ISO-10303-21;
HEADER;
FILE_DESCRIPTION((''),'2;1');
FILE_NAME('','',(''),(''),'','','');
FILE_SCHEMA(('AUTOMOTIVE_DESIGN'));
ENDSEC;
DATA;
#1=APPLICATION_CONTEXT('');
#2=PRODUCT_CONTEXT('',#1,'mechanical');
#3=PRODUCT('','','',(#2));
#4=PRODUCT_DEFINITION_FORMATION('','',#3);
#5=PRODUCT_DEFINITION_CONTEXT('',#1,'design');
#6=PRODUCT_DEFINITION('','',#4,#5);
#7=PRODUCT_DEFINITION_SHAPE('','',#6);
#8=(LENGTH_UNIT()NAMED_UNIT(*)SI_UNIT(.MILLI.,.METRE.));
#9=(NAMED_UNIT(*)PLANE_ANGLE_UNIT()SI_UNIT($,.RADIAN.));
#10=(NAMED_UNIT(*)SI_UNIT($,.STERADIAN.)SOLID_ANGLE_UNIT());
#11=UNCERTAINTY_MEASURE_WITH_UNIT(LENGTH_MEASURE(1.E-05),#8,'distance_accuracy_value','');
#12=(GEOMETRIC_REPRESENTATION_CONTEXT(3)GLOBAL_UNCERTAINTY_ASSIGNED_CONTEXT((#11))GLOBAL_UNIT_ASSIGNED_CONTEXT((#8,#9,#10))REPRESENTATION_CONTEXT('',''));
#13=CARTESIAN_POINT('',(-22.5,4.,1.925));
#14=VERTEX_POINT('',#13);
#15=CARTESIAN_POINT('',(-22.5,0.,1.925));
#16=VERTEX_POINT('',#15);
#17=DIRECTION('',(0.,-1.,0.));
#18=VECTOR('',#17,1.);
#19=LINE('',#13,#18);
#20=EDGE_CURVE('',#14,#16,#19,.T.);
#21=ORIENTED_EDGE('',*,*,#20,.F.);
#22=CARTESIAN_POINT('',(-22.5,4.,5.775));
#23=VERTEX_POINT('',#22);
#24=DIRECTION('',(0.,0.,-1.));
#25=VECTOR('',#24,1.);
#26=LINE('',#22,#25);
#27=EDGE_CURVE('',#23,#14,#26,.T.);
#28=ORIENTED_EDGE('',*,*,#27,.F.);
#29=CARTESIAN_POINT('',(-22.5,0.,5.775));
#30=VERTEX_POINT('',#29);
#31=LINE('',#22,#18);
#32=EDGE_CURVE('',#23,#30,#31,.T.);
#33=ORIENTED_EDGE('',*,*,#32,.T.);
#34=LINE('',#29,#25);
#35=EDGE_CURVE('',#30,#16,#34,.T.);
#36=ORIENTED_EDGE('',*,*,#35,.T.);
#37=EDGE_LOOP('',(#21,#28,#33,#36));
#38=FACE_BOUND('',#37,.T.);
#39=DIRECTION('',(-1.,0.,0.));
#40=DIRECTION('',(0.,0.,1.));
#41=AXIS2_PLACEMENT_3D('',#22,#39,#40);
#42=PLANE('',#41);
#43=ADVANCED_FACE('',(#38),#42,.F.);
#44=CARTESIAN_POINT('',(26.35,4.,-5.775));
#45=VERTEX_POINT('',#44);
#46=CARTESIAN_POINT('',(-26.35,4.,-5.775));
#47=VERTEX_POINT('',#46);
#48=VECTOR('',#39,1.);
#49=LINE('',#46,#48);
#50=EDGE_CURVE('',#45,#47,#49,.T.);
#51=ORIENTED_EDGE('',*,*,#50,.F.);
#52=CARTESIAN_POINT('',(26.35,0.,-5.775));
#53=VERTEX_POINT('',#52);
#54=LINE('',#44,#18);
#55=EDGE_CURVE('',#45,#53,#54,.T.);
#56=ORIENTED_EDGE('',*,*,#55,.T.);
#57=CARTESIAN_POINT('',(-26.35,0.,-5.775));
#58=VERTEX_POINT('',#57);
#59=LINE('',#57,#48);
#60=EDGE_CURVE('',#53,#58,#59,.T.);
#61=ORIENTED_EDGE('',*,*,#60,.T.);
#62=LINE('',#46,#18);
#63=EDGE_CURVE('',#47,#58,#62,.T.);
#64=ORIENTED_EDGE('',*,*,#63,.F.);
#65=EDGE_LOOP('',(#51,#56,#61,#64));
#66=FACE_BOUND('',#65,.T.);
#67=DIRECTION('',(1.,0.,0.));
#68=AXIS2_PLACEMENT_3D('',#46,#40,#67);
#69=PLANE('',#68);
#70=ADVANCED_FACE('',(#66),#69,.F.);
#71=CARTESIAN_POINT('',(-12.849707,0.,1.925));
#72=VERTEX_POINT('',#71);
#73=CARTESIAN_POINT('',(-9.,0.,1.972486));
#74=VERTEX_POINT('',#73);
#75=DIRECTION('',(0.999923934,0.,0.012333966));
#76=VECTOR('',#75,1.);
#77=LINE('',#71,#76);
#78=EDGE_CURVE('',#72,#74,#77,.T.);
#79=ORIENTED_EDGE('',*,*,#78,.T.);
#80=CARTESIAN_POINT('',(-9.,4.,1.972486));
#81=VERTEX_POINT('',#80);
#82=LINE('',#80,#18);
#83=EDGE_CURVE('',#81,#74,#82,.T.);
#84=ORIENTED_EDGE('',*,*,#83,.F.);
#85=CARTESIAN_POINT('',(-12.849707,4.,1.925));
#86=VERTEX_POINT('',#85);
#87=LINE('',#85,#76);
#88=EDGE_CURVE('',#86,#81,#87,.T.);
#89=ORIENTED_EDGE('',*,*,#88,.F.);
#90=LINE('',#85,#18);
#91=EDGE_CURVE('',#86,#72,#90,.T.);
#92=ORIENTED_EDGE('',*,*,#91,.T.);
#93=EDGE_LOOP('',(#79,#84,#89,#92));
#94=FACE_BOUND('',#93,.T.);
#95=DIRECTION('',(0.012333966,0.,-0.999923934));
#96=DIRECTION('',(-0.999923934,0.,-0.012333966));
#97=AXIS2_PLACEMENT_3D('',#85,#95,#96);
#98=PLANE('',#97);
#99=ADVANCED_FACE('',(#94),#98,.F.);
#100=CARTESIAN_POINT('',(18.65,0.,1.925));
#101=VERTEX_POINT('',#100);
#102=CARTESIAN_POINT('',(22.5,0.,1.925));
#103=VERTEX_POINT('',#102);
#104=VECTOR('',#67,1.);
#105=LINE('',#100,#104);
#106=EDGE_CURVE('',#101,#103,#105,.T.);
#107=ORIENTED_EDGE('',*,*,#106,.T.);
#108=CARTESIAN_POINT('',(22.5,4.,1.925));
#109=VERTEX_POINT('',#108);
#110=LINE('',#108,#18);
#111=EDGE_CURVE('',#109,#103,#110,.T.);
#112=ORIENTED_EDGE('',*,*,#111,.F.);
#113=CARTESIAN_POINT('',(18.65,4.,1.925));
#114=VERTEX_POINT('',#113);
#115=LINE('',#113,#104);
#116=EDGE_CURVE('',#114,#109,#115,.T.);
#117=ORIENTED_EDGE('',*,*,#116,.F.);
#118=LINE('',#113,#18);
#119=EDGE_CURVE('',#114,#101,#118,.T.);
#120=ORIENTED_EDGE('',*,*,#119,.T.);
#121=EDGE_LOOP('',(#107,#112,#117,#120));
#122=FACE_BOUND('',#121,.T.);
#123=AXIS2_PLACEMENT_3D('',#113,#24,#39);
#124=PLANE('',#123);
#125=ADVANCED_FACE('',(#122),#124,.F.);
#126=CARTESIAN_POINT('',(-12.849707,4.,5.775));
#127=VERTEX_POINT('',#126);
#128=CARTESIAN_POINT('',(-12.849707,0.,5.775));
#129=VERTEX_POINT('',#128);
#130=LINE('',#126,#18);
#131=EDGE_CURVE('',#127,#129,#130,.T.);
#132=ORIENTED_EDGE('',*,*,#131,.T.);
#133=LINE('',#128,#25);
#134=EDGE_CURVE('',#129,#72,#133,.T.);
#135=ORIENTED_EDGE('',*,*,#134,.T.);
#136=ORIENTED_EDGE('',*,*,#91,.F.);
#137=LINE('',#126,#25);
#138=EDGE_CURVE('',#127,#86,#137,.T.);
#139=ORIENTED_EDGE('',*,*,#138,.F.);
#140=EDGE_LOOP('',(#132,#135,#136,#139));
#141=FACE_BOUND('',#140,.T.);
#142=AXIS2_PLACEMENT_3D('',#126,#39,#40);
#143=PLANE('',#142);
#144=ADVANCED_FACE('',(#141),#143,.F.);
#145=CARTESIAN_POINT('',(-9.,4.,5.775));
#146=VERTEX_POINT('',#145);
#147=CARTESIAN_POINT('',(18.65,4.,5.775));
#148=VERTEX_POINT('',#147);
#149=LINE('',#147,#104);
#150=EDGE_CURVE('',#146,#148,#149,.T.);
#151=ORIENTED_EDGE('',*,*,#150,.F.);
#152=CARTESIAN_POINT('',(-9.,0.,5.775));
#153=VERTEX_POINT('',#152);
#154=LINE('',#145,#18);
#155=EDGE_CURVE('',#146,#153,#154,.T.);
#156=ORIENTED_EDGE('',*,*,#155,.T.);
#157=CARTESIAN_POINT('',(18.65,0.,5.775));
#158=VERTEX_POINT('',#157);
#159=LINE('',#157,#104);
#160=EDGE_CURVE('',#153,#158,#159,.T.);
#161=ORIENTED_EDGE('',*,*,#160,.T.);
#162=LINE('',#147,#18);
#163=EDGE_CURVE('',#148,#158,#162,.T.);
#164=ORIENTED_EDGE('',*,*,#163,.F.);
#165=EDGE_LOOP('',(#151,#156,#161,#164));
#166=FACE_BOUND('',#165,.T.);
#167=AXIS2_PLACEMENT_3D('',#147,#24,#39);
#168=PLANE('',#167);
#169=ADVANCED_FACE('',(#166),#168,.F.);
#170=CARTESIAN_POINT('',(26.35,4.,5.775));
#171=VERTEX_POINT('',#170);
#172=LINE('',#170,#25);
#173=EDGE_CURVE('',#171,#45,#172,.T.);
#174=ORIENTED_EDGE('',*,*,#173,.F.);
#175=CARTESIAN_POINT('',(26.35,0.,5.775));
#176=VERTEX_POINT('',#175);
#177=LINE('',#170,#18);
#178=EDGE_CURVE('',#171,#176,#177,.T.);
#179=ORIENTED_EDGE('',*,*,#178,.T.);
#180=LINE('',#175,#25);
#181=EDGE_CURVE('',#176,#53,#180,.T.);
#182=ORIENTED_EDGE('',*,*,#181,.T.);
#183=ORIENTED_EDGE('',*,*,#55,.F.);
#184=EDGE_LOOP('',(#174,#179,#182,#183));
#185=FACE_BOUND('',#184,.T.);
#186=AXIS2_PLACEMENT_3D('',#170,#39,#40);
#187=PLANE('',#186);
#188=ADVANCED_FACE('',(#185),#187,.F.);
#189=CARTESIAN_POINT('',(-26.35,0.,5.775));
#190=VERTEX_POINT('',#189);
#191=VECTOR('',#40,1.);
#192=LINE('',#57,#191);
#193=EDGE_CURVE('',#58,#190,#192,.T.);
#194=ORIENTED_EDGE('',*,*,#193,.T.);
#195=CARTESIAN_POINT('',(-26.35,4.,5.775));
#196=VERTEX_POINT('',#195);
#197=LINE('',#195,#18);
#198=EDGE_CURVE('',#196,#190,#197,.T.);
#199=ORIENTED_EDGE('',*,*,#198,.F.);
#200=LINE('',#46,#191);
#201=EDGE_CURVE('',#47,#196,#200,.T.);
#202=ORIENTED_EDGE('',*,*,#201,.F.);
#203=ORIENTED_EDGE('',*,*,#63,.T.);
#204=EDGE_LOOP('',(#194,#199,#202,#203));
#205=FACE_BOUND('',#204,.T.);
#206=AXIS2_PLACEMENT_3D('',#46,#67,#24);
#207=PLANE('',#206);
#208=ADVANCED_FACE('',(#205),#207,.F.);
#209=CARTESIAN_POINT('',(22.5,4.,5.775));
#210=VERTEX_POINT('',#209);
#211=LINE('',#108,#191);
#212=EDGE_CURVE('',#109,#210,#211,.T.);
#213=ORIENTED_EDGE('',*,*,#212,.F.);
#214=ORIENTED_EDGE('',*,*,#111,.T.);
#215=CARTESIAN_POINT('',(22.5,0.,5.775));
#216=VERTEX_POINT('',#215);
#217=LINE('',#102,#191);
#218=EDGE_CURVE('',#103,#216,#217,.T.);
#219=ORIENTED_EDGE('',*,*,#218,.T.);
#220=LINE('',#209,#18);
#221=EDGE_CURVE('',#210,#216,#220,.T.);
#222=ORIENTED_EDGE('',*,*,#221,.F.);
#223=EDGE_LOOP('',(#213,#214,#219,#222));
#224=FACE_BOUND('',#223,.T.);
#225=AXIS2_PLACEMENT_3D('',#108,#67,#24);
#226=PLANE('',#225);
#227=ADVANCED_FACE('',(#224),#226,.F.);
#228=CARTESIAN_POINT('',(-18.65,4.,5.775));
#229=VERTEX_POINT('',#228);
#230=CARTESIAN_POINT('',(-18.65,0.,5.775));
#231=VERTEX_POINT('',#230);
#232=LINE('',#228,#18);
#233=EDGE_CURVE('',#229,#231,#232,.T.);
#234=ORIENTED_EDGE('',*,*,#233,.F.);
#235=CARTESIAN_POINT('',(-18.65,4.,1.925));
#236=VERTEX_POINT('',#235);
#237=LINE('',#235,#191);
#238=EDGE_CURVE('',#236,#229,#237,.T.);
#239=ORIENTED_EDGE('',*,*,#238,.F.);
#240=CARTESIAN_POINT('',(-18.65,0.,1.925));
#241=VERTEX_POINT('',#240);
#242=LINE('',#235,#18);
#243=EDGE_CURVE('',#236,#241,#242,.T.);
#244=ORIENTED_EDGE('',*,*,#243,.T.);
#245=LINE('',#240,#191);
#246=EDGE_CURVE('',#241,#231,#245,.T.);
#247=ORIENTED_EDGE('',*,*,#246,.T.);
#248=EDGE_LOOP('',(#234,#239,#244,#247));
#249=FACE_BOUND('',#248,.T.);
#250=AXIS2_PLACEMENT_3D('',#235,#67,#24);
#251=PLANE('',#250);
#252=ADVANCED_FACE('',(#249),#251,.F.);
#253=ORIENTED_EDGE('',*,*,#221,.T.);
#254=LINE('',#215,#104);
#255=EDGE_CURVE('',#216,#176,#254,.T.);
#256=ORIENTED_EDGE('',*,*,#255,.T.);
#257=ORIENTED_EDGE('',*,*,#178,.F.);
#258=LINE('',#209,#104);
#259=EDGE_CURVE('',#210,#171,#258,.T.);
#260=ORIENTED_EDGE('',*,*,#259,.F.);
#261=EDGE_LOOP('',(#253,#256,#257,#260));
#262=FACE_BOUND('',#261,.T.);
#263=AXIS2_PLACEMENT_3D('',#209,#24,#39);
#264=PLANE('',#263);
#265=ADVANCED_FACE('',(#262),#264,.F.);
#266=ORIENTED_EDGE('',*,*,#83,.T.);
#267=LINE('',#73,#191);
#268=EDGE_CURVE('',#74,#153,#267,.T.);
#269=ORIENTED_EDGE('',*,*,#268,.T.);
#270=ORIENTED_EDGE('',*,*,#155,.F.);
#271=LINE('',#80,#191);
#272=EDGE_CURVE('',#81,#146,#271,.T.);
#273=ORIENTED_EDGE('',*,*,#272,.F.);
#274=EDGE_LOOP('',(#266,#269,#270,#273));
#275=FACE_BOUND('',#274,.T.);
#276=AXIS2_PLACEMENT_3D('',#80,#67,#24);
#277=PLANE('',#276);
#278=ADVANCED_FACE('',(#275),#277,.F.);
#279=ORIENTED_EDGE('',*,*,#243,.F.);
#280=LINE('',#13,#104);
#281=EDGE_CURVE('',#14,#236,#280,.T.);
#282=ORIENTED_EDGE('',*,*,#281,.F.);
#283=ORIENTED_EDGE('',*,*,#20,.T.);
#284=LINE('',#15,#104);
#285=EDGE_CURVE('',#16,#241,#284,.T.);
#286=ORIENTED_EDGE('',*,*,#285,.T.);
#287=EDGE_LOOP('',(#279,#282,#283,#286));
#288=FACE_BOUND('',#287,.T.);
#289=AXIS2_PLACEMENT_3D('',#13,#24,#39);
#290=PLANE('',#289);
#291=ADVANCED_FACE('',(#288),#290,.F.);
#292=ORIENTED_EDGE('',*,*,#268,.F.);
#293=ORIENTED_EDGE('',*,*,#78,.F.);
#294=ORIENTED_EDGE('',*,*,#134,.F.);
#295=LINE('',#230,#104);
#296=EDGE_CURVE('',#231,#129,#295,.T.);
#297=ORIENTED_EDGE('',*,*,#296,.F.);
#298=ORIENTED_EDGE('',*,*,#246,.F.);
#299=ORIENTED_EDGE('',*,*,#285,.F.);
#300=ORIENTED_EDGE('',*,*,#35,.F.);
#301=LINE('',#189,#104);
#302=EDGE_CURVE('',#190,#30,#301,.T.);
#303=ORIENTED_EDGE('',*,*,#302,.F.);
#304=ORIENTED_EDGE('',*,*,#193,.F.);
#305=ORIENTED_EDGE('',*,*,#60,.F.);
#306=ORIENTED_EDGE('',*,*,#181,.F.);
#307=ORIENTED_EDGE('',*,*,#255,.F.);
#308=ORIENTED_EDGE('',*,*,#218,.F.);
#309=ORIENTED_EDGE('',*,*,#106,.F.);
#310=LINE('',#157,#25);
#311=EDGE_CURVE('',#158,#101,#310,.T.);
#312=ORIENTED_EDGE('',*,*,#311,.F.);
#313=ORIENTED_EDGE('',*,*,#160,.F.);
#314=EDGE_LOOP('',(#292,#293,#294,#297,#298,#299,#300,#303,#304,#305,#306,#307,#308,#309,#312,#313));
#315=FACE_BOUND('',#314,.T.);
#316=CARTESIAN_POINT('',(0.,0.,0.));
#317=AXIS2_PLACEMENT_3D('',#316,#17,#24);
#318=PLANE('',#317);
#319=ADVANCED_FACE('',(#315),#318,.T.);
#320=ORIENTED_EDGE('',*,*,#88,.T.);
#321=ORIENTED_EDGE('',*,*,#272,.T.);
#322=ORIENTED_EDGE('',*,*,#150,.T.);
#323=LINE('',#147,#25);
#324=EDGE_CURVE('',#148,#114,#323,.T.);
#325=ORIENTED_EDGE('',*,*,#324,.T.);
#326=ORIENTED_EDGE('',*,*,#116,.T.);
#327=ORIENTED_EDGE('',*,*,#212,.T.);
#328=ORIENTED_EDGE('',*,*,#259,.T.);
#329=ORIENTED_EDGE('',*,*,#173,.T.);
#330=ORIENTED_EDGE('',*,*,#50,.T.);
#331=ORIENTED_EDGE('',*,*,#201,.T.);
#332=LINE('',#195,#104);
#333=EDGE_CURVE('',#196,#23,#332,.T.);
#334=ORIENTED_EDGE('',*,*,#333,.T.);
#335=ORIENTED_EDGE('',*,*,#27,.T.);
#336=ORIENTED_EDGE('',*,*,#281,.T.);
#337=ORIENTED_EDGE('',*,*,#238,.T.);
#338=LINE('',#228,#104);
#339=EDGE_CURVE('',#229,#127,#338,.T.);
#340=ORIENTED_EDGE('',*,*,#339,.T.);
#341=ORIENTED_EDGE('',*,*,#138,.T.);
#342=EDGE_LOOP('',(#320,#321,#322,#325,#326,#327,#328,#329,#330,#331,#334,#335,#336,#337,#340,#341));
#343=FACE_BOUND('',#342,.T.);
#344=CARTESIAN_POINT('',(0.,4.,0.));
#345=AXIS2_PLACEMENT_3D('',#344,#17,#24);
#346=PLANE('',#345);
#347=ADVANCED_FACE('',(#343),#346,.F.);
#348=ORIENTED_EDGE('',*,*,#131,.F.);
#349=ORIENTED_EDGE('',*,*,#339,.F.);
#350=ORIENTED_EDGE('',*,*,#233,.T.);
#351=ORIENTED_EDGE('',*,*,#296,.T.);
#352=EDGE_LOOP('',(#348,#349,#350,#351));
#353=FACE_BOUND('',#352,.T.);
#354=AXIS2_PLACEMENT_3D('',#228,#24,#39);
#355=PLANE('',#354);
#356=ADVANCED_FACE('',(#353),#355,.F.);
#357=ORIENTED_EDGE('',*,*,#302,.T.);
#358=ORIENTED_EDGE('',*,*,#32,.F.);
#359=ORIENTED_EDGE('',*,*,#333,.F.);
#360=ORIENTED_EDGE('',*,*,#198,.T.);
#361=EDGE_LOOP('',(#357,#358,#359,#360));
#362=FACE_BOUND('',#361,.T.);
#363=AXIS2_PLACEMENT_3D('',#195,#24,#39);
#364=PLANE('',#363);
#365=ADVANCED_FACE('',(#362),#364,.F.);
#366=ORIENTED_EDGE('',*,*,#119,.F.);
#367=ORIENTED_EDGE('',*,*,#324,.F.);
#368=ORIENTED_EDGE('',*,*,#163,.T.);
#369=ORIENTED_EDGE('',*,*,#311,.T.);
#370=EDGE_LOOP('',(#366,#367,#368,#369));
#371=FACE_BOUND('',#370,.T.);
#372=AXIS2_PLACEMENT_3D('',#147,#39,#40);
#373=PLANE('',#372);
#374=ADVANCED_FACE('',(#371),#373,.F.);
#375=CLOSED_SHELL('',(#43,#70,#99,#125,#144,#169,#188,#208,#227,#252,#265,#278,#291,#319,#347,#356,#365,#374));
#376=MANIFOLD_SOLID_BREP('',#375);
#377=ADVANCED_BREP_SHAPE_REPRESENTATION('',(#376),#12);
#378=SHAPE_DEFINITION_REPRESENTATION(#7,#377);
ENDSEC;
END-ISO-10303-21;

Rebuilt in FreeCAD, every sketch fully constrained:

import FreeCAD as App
import Part
import Sketcher
Q = App.Units.Quantity

doc = App.newDocument("Part")
body = doc.addObject("PartDesign::Body", "Body")

# Sketch on XZ plane
sketch1 = body.newObject("Sketcher::SketchObject", "Sketch")
sketch1.AttachmentSupport = (doc.getObject("XZ_Plane"), [""])
sketch1.MapMode = "FlatFace"
sketch1.addGeometry([
    Part.LineSegment(App.Vector(26.35, -5.775, 0), App.Vector(-26.35, -5.775, 0)),  # 0
    Part.LineSegment(App.Vector(-26.35, -5.775, 0), App.Vector(-26.35, 5.775, 0)),  # 1
    Part.LineSegment(App.Vector(-26.35, 5.775, 0), App.Vector(-22.5, 5.775, 0)),  # 2
    Part.LineSegment(App.Vector(-22.5, 5.775, 0), App.Vector(-22.5, 1.925, 0)),  # 3
    Part.LineSegment(App.Vector(-22.5, 1.925, 0), App.Vector(-18.65, 1.925, 0)),  # 4
    Part.LineSegment(App.Vector(-18.65, 1.925, 0), App.Vector(-18.65, 5.775, 0)),  # 5
    Part.LineSegment(App.Vector(-18.65, 5.775, 0), App.Vector(-12.849707, 5.775, 0)),  # 6
    Part.LineSegment(App.Vector(-12.849707, 5.775, 0), App.Vector(-12.849707, 1.925, 0)),  # 7
    Part.LineSegment(App.Vector(-12.849707, 1.925, 0), App.Vector(-9, 1.972486, 0)),  # 8
    Part.LineSegment(App.Vector(-9, 1.972486, 0), App.Vector(-9, 5.775, 0)),  # 9
    Part.LineSegment(App.Vector(-9, 5.775, 0), App.Vector(18.65, 5.775, 0)),  # 10
    Part.LineSegment(App.Vector(18.65, 5.775, 0), App.Vector(18.65, 1.925, 0)),  # 11
    Part.LineSegment(App.Vector(18.65, 1.925, 0), App.Vector(22.5, 1.925, 0)),  # 12
    Part.LineSegment(App.Vector(22.5, 1.925, 0), App.Vector(22.5, 5.775, 0)),  # 13
    Part.LineSegment(App.Vector(22.5, 5.775, 0), App.Vector(26.35, 5.775, 0)),  # 14
    Part.LineSegment(App.Vector(26.35, 5.775, 0), App.Vector(26.35, -5.775, 0)),  # 15
], False)
sketch1.addConstraint([
    Sketcher.Constraint("Coincident", 0, 2, 1, 1),
    Sketcher.Constraint("Coincident", 1, 2, 2, 1),
    Sketcher.Constraint("Coincident", 2, 2, 3, 1),
    Sketcher.Constraint("Coincident", 3, 2, 4, 1),
    Sketcher.Constraint("Coincident", 4, 2, 5, 1),
    Sketcher.Constraint("Coincident", 5, 2, 6, 1),
    Sketcher.Constraint("Coincident", 6, 2, 7, 1),
    Sketcher.Constraint("Coincident", 7, 2, 8, 1),
    Sketcher.Constraint("Coincident", 8, 2, 9, 1),
    Sketcher.Constraint("Coincident", 9, 2, 10, 1),
    Sketcher.Constraint("Coincident", 10, 2, 11, 1),
    Sketcher.Constraint("Coincident", 11, 2, 12, 1),
    Sketcher.Constraint("Coincident", 12, 2, 13, 1),
    Sketcher.Constraint("Coincident", 13, 2, 14, 1),
    Sketcher.Constraint("Coincident", 14, 2, 15, 1),
    Sketcher.Constraint("Coincident", 15, 2, 0, 1),
    Sketcher.Constraint("Horizontal", 0),
    Sketcher.Constraint("Vertical", 1),
    Sketcher.Constraint("Horizontal", 2),
    Sketcher.Constraint("Vertical", 3),
    Sketcher.Constraint("Horizontal", 4),
    Sketcher.Constraint("Vertical", 5),
    Sketcher.Constraint("Horizontal", 6),
    Sketcher.Constraint("Vertical", 7),
    Sketcher.Constraint("Vertical", 9),
    Sketcher.Constraint("Horizontal", 10),
    Sketcher.Constraint("Vertical", 11),
    Sketcher.Constraint("Horizontal", 12),
    Sketcher.Constraint("Vertical", 13),
    Sketcher.Constraint("Horizontal", 14),
    Sketcher.Constraint("Vertical", 15),
    Sketcher.Constraint("Symmetric", 0, 2, 14, 2, -1, 1),
    Sketcher.Constraint("Symmetric", 5, 2, 10, 2, -2),
    Sketcher.Constraint("Symmetric", 3, 2, 12, 2, -2),
    Sketcher.Constraint("Horizontal", 2, 2, 5, 2),
    Sketcher.Constraint("Horizontal", 4, 2, 7, 2),
    Sketcher.Constraint("Horizontal", 10, 2, 13, 2),
    Sketcher.Constraint("Equal", 2, 4),
    Sketcher.Constraint("Equal", 14, 3),
    Sketcher.Constraint("DistanceX", 0, 2, 0, 1, Q("52.7 mm")),
    Sketcher.Constraint("DistanceX", 8, 2, -1, 1, Q("9 mm")),
    Sketcher.Constraint("DistanceX", 2, 1, 2, 2, Q("3.85 mm")),
    Sketcher.Constraint("DistanceY", 1, 1, 1, 2, Q("11.55 mm")),
    Sketcher.Constraint("Distance", 8, Q("3.85 mm")),
    Sketcher.Constraint("DistanceX", 6, 1, 6, 2, Q("5.800293 mm")),
])
pad1 = body.newObject("PartDesign::Pad", "Pad")
pad1.Profile = sketch1
pad1.Length = 4
pad1.Reversed = True

doc.recompute()
